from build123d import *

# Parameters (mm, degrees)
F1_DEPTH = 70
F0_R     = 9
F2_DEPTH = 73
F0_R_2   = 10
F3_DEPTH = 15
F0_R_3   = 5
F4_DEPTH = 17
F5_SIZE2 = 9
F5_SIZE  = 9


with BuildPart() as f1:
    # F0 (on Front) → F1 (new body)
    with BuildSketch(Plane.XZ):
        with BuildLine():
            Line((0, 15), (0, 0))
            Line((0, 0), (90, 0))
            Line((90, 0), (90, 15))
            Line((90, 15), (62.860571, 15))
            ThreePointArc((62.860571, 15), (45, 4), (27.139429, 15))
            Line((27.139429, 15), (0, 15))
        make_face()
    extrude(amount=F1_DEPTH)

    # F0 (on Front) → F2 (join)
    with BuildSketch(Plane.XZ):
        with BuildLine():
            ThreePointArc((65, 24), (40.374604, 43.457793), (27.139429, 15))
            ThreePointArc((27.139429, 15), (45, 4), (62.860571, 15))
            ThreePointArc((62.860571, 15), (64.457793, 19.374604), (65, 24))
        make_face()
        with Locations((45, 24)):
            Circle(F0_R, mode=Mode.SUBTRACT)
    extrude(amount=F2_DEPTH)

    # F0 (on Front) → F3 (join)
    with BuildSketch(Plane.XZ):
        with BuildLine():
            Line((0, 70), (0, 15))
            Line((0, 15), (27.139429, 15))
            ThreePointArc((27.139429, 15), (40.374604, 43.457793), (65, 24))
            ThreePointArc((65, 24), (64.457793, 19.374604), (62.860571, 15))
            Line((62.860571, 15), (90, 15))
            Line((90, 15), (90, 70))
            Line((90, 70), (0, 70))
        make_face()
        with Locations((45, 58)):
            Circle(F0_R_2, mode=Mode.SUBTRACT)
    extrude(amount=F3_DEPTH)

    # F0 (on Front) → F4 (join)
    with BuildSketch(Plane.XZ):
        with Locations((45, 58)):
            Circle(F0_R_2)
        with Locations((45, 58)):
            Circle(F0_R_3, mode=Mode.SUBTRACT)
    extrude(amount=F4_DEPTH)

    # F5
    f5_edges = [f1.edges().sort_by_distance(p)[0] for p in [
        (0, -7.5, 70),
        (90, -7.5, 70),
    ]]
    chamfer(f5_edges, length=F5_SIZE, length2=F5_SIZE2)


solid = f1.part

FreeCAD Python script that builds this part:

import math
import FreeCAD as App
import Part
import Sketcher
Q = App.Units.Quantity


def edges_at(feature, points):
    """Names of the edges that pass closest to the given points."""
    edges = feature.Shape.Edges
    near = lambda p: min(range(len(edges)), key=lambda i: edges[i].distToShape(Part.Vertex(*p))[0])
    return sorted({f"Edge{near(p) + 1}" for p in points})

doc = App.newDocument("Part")
body = doc.addObject("PartDesign::Body", "Body")

# Sketch on XZ plane
sketch1 = doc.addObject("Sketcher::SketchObject", "Sketch")
body.addObject(sketch1)
sketch1.AttachmentSupport = (doc.XZ_Plane, [""])
sketch1.MapMode = "FlatFace"
sketch1.addGeometry(Part.LineSegment(App.Vector(0, 15, 0), App.Vector(0, 0, 0)), False)
sketch1.addGeometry(Part.LineSegment(App.Vector(0, 0, 0), App.Vector(90, 0, 0)), False)
sketch1.addGeometry(Part.LineSegment(App.Vector(90, 0, 0), App.Vector(90, 15, 0)), False)
sketch1.addGeometry(Part.LineSegment(App.Vector(90, 15, 0), App.Vector(63, 15, 0)), False)
sketch1.addGeometry(Part.ArcOfCircle(Part.Circle(App.Vector(45, 24, 0), App.Vector(0, 0, 1), 20), math.radians(-153), math.radians(-27)), False)
sketch1.addGeometry(Part.LineSegment(App.Vector(27, 15, 0), App.Vector(0, 15, 0)), False)
sketch1.addConstraint(Sketcher.Constraint("Coincident", 0, 2, 1, 1))
sketch1.addConstraint(Sketcher.Constraint("Coincident", 1, 2, 2, 1))
sketch1.addConstraint(Sketcher.Constraint("Coincident", 2, 2, 3, 1))
sketch1.addConstraint(Sketcher.Constraint("Coincident", 3, 2, 4, 2))
sketch1.addConstraint(Sketcher.Constraint("Coincident", 4, 1, 5, 1))
sketch1.addConstraint(Sketcher.Constraint("Coincident", 5, 2, 0, 1))
sketch1.addConstraint(Sketcher.Constraint("Vertical", 0))
sketch1.addConstraint(Sketcher.Constraint("Horizontal", 1))
sketch1.addConstraint(Sketcher.Constraint("Vertical", 2))
sketch1.addConstraint(Sketcher.Constraint("Horizontal", 3))
sketch1.addConstraint(Sketcher.Constraint("Horizontal", 5))
sketch1.addConstraint(Sketcher.Constraint("Coincident", 0, 2, -1, 1))
sketch1.addConstraint(Sketcher.Constraint("Horizontal", 3, 2, 4, 1))
sketch1.addConstraint(Sketcher.Constraint("Equal", 3, 5))
sketch1.addConstraint(Sketcher.Constraint("Radius", 4, Q("20 mm")))
sketch1.addConstraint(Sketcher.Constraint("DistanceX", 1, 1, 1, 2, Q("90 mm")))
sketch1.addConstraint(Sketcher.Constraint("DistanceY", 0, 2, 0, 1, Q("15 mm")))
sketch1.addConstraint(Sketcher.Constraint("DistanceY", -1, 1, 4, 3, Q("24 mm")))
pad1 = doc.addObject("PartDesign::Pad", "Pad")
body.addObject(pad1)
pad1.Profile = sketch1
pad1.Length = 70

# Sketch on XZ plane
sketch2 = doc.addObject("Sketcher::SketchObject", "Sketch001")
body.addObject(sketch2)
sketch2.AttachmentSupport = (doc.XZ_Plane, [""])
sketch2.MapMode = "FlatFace"
sketch2.addGeometry(Part.ArcOfCircle(Part.Circle(App.Vector(45, 24, 0), App.Vector(0, 0, 1), 20), math.radians(0), math.radians(207)), False)
sketch2.addGeometry(Part.ArcOfCircle(Part.Circle(App.Vector(45, 24, 0), App.Vector(0, 0, 1), 20), math.radians(-153), math.radians(-27)), False)
sketch2.addGeometry(Part.ArcOfCircle(Part.Circle(App.Vector(45, 24, 0), App.Vector(0, 0, 1), 20), math.radians(-27), math.radians(0)), False)
sketch2.addGeometry(Part.Circle(App.Vector(45, 24, 0), App.Vector(0, 0, 1), 9), False)
sketch2.addConstraint(Sketcher.Constraint("Tangent", 0, 2, 1, 1))
sketch2.addConstraint(Sketcher.Constraint("Tangent", 1, 2, 2, 1))
sketch2.addConstraint(Sketcher.Constraint("Tangent", 2, 2, 0, 1))
sketch2.addConstraint(Sketcher.Constraint("Coincident", 3, 3, 0, 3))
sketch2.addConstraint(Sketcher.Constraint("Horizontal", 0, 2, 1, 2))
sketch2.addConstraint(Sketcher.Constraint("Horizontal", 3, 3, 2, 2))
sketch2.addConstraint(Sketcher.Constraint("Diameter", 3, Q("18 mm")))
sketch2.addConstraint(Sketcher.Constraint("Radius", 0, Q("20 mm")))
sketch2.addConstraint(Sketcher.Constraint("DistanceX", -1, 1, 0, 3, Q("45 mm")))
sketch2.addConstraint(Sketcher.Constraint("DistanceY", -1, 1, 0, 3, Q("24 mm")))
sketch2.addConstraint(Sketcher.Constraint("DistanceY", -1, 1, 0, 2, Q("15 mm")))
pad2 = doc.addObject("PartDesign::Pad", "Pad001")
body.addObject(pad2)
pad2.Profile = sketch2
pad2.Length = 73

# Sketch on XZ plane
sketch3 = doc.addObject("Sketcher::SketchObject", "Sketch002")
body.addObject(sketch3)
sketch3.AttachmentSupport = (doc.XZ_Plane, [""])
sketch3.MapMode = "FlatFace"
sketch3.addGeometry(Part.LineSegment(App.Vector(0, 70, 0), App.Vector(0, 15, 0)), False)
sketch3.addGeometry(Part.LineSegment(App.Vector(0, 15, 0), App.Vector(27, 15, 0)), False)
sketch3.addGeometry(Part.ArcOfCircle(Part.Circle(App.Vector(45, 24, 0), App.Vector(0, 0, 1), 20), math.radians(0), math.radians(207)), False)
sketch3.addGeometry(Part.ArcOfCircle(Part.Circle(App.Vector(45, 24, 0), App.Vector(0, 0, 1), 20), math.radians(-27), math.radians(0)), False)
sketch3.addGeometry(Part.LineSegment(App.Vector(63, 15, 0), App.Vector(90, 15, 0)), False)
sketch3.addGeometry(Part.LineSegment(App.Vector(90, 15, 0), App.Vector(90, 70, 0)), False)
sketch3.addGeometry(Part.LineSegment(App.Vector(90, 70, 0), App.Vector(0, 70, 0)), False)
sketch3.addGeometry(Part.Circle(App.Vector(45, 58, 0), App.Vector(0, 0, 1), 10), False)
sketch3.addConstraint(Sketcher.Constraint("Coincident", 0, 2, 1, 1))
sketch3.addConstraint(Sketcher.Constraint("Coincident", 1, 2, 2, 2))
sketch3.addConstraint(Sketcher.Constraint("Tangent", 2, 1, 3, 2))
sketch3.addConstraint(Sketcher.Constraint("Coincident", 3, 1, 4, 1))
sketch3.addConstraint(Sketcher.Constraint("Coincident", 4, 2, 5, 1))
sketch3.addConstraint(Sketcher.Constraint("Coincident", 5, 2, 6, 1))
sketch3.addConstraint(Sketcher.Constraint("Coincident", 6, 2, 0, 1))
sketch3.addConstraint(Sketcher.Constraint("Vertical", 0))
sketch3.addConstraint(Sketcher.Constraint("Horizontal", 1))
sketch3.addConstraint(Sketcher.Constraint("Horizontal", 4))
sketch3.addConstraint(Sketcher.Constraint("Vertical", 5))
sketch3.addConstraint(Sketcher.Constraint("Horizontal", 6))
sketch3.addConstraint(Sketcher.Constraint("Equal", 2, 3))
sketch3.addConstraint(Sketcher.Constraint("PointOnObject", 0, 2, -2))
sketch3.addConstraint(Sketcher.Constraint("Horizontal", 3, 3, 2, 1))
sketch3.addConstraint(Sketcher.Constraint("Horizontal", 1, 2, 3, 1))
sketch3.addConstraint(Sketcher.Constraint("Vertical", 3, 3, 7, 3))
sketch3.addConstraint(Sketcher.Constraint("Equal", 1, 4))
sketch3.addConstraint(Sketcher.Constraint("Diameter", 7, Q("20 mm")))
sketch3.addConstraint(Sketcher.Constraint("Radius", 2, Q("20 mm")))
sketch3.addConstraint(Sketcher.Constraint("DistanceX", 6, 2, 6, 1, Q("90 mm")))
sketch3.addConstraint(Sketcher.Constraint("DistanceY", 0, 2, 0, 1, Q("55 mm")))
sketch3.addConstraint(Sketcher.Constraint("DistanceY", -1, 1, 2, 3, Q("24 mm")))
sketch3.addConstraint(Sketcher.Constraint("DistanceY", -1, 1, 7, 3, Q("58 mm")))
sketch3.addConstraint(Sketcher.Constraint("DistanceY", -1, 1, 0, 2, Q("15 mm")))
pad3 = doc.addObject("PartDesign::Pad", "Pad002")
body.addObject(pad3)
pad3.Profile = sketch3
pad3.Length = 15

# Sketch on XZ plane
sketch4 = doc.addObject("Sketcher::SketchObject", "Sketch003")
body.addObject(sketch4)
sketch4.AttachmentSupport = (doc.XZ_Plane, [""])
sketch4.MapMode = "FlatFace"
sketch4.addGeometry(Part.Circle(App.Vector(45, 58, 0), App.Vector(0, 0, 1), 10), False)
sketch4.addGeometry(Part.Circle(App.Vector(45, 58, 0), App.Vector(0, 0, 1), 5), False)
sketch4.addConstraint(Sketcher.Constraint("Coincident", 1, 3, 0, 3))
sketch4.addConstraint(Sketcher.Constraint("Diameter", 0, Q("20 mm")))
sketch4.addConstraint(Sketcher.Constraint("Diameter", 1, Q("10 mm")))
sketch4.addConstraint(Sketcher.Constraint("DistanceX", -1, 1, 0, 3, Q("45 mm")))
sketch4.addConstraint(Sketcher.Constraint("DistanceY", -1, 1, 0, 3, Q("58 mm")))
pad4 = doc.addObject("PartDesign::Pad", "Pad003")
body.addObject(pad4)
pad4.Profile = sketch4
pad4.Length = 17
doc.recompute()

chamfer = doc.addObject("PartDesign::Chamfer", "Chamfer")
body.addObject(chamfer)
chamfer.Base = (pad4, edges_at(pad4, [(0, -7.5, 70), (90, -7.5, 70)]))
chamfer.ChamferType = "Two distances"
chamfer.Size = 9
chamfer.Size2 = 9

doc.recompute()
